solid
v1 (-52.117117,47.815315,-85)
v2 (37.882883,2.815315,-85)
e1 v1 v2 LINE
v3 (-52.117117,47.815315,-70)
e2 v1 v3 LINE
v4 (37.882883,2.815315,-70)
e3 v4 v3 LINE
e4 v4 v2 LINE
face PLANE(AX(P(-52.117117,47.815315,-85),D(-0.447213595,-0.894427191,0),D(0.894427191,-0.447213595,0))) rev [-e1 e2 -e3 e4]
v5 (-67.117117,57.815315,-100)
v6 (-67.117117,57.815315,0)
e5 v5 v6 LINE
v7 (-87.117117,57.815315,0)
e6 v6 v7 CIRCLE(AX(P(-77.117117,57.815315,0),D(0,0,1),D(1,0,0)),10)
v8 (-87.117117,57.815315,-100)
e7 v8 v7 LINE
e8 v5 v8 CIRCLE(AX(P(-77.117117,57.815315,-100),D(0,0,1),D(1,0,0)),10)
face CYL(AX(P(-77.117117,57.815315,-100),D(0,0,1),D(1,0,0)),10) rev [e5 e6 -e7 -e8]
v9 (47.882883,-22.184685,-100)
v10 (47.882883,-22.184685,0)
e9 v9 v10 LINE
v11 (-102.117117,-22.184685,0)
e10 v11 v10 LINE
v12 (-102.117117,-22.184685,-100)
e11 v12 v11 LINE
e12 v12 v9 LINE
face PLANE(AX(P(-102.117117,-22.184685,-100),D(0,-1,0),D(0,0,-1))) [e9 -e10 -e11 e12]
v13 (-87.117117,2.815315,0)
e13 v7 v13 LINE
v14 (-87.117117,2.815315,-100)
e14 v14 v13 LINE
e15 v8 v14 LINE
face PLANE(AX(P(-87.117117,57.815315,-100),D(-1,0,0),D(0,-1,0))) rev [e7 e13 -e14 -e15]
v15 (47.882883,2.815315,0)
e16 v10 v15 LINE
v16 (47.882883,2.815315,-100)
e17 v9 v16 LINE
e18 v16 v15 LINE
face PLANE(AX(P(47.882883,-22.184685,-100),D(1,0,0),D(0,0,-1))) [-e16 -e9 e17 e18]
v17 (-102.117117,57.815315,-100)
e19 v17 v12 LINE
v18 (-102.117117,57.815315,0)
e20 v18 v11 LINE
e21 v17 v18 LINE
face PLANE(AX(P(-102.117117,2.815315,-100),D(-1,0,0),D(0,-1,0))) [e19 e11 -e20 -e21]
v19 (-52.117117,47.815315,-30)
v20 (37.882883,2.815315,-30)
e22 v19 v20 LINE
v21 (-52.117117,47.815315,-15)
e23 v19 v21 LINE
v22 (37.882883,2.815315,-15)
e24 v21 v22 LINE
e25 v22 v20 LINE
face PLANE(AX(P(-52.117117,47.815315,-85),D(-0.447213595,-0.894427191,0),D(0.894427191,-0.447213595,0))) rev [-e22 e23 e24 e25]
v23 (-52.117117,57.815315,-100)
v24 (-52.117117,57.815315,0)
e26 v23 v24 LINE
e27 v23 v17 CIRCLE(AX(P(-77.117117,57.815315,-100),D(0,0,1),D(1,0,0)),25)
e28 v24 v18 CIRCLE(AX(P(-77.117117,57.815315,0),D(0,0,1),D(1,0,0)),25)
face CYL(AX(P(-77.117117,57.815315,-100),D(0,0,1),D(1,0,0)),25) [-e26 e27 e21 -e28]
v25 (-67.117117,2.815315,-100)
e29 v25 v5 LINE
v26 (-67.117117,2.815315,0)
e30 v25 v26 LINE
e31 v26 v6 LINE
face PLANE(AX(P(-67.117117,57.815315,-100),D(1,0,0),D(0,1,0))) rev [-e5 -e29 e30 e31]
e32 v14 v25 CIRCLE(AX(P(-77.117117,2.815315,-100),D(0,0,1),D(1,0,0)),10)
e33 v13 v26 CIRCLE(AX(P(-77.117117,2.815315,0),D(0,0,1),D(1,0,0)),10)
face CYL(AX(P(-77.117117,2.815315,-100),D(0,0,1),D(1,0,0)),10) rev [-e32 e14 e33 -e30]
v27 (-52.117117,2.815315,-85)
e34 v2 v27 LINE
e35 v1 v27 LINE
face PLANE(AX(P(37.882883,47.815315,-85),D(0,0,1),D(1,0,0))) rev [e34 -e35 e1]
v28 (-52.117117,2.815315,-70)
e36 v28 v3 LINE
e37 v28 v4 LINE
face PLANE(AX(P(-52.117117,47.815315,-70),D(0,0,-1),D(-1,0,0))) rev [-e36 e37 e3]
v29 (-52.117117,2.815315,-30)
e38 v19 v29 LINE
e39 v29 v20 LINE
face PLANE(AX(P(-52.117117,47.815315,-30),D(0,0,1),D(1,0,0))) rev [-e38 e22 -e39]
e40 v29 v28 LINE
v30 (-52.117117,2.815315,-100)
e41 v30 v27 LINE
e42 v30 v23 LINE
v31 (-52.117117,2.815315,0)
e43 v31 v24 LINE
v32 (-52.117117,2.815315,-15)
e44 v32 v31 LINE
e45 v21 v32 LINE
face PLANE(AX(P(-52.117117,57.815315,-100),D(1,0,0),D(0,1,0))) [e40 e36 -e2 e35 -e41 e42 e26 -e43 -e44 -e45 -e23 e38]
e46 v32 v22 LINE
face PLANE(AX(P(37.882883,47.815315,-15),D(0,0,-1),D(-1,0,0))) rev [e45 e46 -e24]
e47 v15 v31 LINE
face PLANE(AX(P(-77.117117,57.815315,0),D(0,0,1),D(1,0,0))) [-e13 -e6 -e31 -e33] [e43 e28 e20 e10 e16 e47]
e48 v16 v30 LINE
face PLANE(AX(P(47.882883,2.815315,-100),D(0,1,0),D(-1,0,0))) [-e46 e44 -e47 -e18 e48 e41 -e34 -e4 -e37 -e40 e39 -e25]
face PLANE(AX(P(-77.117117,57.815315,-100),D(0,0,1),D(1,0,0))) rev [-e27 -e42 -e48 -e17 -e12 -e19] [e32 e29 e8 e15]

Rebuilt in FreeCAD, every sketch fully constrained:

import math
import FreeCAD as App
import Part
import Sketcher
from FreeCAD import Vector

doc = App.newDocument("Part")
body = doc.addObject("PartDesign::Body", "Body")

# Sketch on XY plane
sketch1 = body.newObject("Sketcher::SketchObject", "Sketch")
sketch1.AttachmentSupport = (doc.getObject("XY_Plane"), [""])
sketch1.MapMode = "FlatFace"
sketch1.addGeometry([
    Part.LineSegment(Vector(-52, 3, 0), Vector(-52, 58, 0)),  # 0
    Part.ArcOfCircle(Part.Circle(Vector(-77, 58, 0), Vector(0, 0, 1), 25), math.radians(0), math.radians(180)),  # 1
    Part.LineSegment(Vector(-102, 58, 0), Vector(-102, -22, 0)),  # 2
    Part.LineSegment(Vector(-102, -22, 0), Vector(48, -22, 0)),  # 3
    Part.LineSegment(Vector(48, -22, 0), Vector(48, 3, 0)),  # 4
    Part.LineSegment(Vector(48, 3, 0), Vector(-52, 3, 0)),  # 5
    Part.LineSegment(Vector(-67, 58, 0), Vector(-67, 3, 0)),  # 6
    Part.ArcOfCircle(Part.Circle(Vector(-77, 3, 0), Vector(0, 0, 1), 10), math.radians(180), math.radians(360)),  # 7
    Part.LineSegment(Vector(-87, 3, 0), Vector(-87, 58, 0)),  # 8
    Part.ArcOfCircle(Part.Circle(Vector(-77, 58, 0), Vector(0, 0, 1), 10), math.radians(0), math.radians(180)),  # 9
], False)
sketch1.addConstraint([
    Sketcher.Constraint("Tangent", 0, 2, 1, 1),
    Sketcher.Constraint("Tangent", 1, 2, 2, 1),
    Sketcher.Constraint("Coincident", 2, 2, 3, 1),
    Sketcher.Constraint("Coincident", 3, 2, 4, 1),
    Sketcher.Constraint("Coincident", 4, 2, 5, 1),
    Sketcher.Constraint("Coincident", 5, 2, 0, 1),
    Sketcher.Constraint("Tangent", 6, 2, 7, 2),
    Sketcher.Constraint("Tangent", 7, 1, 8, 1),
    Sketcher.Constraint("Tangent", 8, 2, 9, 2),
    Sketcher.Constraint("Tangent", 9, 1, 6, 1),
    Sketcher.Constraint("Vertical", 0),
    Sketcher.Constraint("Vertical", 2),
    Sketcher.Constraint("Horizontal", 3),
    Sketcher.Constraint("Vertical", 4),
    Sketcher.Constraint("Horizontal", 5),
    Sketcher.Constraint("Vertical", 6),
    Sketcher.Constraint("Vertical", 8),
    Sketcher.Constraint("Coincident", 9, 3, 1, 3),
    Sketcher.Constraint("Horizontal", 7, 3, 4, 2),
    Sketcher.Constraint("Radius", 1, 25.0),
    Sketcher.Constraint("Radius", 7, 10.0),
    Sketcher.Constraint("DistanceX", 3, 1, 3, 2, 150.0),
    Sketcher.Constraint("DistanceY", 0, 1, 0, 2, 55.0),
    Sketcher.Constraint("DistanceY", 2, 2, 2, 1, 80.0),
    Sketcher.Constraint("DistanceX", 1, 3, -1, 1, 77.117117),
    Sketcher.Constraint("DistanceY", -1, 1, 1, 3, 57.815315),
])
pad1 = body.newObject("PartDesign::Pad", "Pad")
pad1.Profile = sketch1
pad1.Length = 100
pad1.Reversed = True

# Sketch on XZ plane
sketch2 = body.newObject("Sketcher::SketchObject", "Sketch001")
sketch2.AttachmentSupport = (doc.getObject("XZ_Plane"), [""])
sketch2.MapMode = "FlatFace"
sketch2.AttachmentOffset = App.Placement(Vector(0, 0, -2.815315), App.Rotation())
sketch2.addGeometry([
    Part.LineSegment(Vector(-52, -85, 0), Vector(-52, -15, 0)),
    Part.LineSegment(Vector(-52, -15, 0), Vector(38, -15, 0)),
    Part.LineSegment(Vector(38, -15, 0), Vector(38, -85, 0)),
    Part.LineSegment(Vector(38, -85, 0), Vector(-52, -85, 0)),
], False)
sketch2.addConstraint([
    Sketcher.Constraint("Coincident", 0, 2, 1, 1),
    Sketcher.Constraint("Coincident", 1, 2, 2, 1),
    Sketcher.Constraint("Coincident", 2, 2, 3, 1),
    Sketcher.Constraint("Coincident", 3, 2, 0, 1),
    Sketcher.Constraint("Vertical", 0),
    Sketcher.Constraint("Horizontal", 1),
    Sketcher.Constraint("Vertical", 2),
    Sketcher.Constraint("Horizontal", 3),
    Sketcher.Constraint("DistanceX", 1, 1, 1, 2, 90.0),
    Sketcher.Constraint("DistanceY", 0, 1, 0, 2, 70.0),
    Sketcher.Constraint("DistanceY", 0, 2, -1, 1, 15.0),
    Sketcher.Constraint("DistanceX", 0, 2, -1, 1, 52.117117),
])
pad2 = body.newObject("PartDesign::Pad", "Pad001")
pad2.Profile = sketch2
pad2.Length = 45
pad2.Reversed = True

# Sketch on YZ plane
sketch3 = body.newObject("Sketcher::SketchObject", "Sketch002")
sketch3.AttachmentSupport = (doc.getObject("YZ_Plane"), [""])
sketch3.MapMode = "FlatFace"
sketch3.AttachmentOffset = App.Placement(Vector(0, 0, 37.882883), App.Rotation())
sketch3.addGeometry([
    Part.LineSegment(Vector(48, -30, 0), Vector(3, -30, 0)),
    Part.LineSegment(Vector(3, -30, 0), Vector(3, -70, 0)),
    Part.LineSegment(Vector(3, -70, 0), Vector(48, -70, 0)),
    Part.LineSegment(Vector(48, -70, 0), Vector(48, -30, 0)),
], False)
sketch3.addConstraint([
    Sketcher.Constraint("Coincident", 0, 2, 1, 1),
    Sketcher.Constraint("Coincident", 1, 2, 2, 1),
    Sketcher.Constraint("Coincident", 2, 2, 3, 1),
    Sketcher.Constraint("Coincident", 3, 2, 0, 1),
    Sketcher.Constraint("Horizontal", 0),
    Sketcher.Constraint("Vertical", 1),
    Sketcher.Constraint("Horizontal", 2),
    Sketcher.Constraint("Vertical", 3),
    Sketcher.Constraint("DistanceX", 0, 2, 0, 1, 45.0),
    Sketcher.Constraint("DistanceY", 1, 2, 1, 1, 40.0),
    Sketcher.Constraint("DistanceY", 0, 2, -1, 1, 30.0),
    Sketcher.Constraint("DistanceX", -1, 1, 0, 2, 2.815315),
])
pocket1 = body.newObject("PartDesign::Pocket", "Pocket")
pocket1.Profile = sketch3
pocket1.Length = 90

# Sketch on XY plane
sketch4 = body.newObject("Sketcher::SketchObject", "Sketch003")
sketch4.AttachmentSupport = (doc.getObject("XY_Plane"), [""])
sketch4.MapMode = "FlatFace"
sketch4.AttachmentOffset = App.Placement(Vector(0, 0, -15), App.Rotation())
sketch4.addGeometry([
    Part.LineSegment(Vector(-52, 48, 0), Vector(38, 3, 0)),
    Part.LineSegment(Vector(38, 3, 0), Vector(38, 48, 0)),
    Part.LineSegment(Vector(38, 48, 0), Vector(-52, 48, 0)),
], False)
sketch4.addConstraint([
    Sketcher.Constraint("Coincident", 0, 2, 1, 1),
    Sketcher.Constraint("Coincident", 1, 2, 2, 1),
    Sketcher.Constraint("Coincident", 2, 2, 0, 1),
    Sketcher.Constraint("Vertical", 1),
    Sketcher.Constraint("Horizontal", 2),
    Sketcher.Constraint("DistanceX", 2, 2, 2, 1, 90.0),
    Sketcher.Constraint("DistanceY", 1, 1, 1, 2, 45.0),
    Sketcher.Constraint("DistanceX", -1, 1, 0, 2, 37.882883),
    Sketcher.Constraint("DistanceY", -1, 1, 0, 2, 2.815315),
])
pocket2 = body.newObject("PartDesign::Pocket", "Pocket001")
pocket2.Profile = sketch4
pocket2.Length = 70

doc.recompute()
